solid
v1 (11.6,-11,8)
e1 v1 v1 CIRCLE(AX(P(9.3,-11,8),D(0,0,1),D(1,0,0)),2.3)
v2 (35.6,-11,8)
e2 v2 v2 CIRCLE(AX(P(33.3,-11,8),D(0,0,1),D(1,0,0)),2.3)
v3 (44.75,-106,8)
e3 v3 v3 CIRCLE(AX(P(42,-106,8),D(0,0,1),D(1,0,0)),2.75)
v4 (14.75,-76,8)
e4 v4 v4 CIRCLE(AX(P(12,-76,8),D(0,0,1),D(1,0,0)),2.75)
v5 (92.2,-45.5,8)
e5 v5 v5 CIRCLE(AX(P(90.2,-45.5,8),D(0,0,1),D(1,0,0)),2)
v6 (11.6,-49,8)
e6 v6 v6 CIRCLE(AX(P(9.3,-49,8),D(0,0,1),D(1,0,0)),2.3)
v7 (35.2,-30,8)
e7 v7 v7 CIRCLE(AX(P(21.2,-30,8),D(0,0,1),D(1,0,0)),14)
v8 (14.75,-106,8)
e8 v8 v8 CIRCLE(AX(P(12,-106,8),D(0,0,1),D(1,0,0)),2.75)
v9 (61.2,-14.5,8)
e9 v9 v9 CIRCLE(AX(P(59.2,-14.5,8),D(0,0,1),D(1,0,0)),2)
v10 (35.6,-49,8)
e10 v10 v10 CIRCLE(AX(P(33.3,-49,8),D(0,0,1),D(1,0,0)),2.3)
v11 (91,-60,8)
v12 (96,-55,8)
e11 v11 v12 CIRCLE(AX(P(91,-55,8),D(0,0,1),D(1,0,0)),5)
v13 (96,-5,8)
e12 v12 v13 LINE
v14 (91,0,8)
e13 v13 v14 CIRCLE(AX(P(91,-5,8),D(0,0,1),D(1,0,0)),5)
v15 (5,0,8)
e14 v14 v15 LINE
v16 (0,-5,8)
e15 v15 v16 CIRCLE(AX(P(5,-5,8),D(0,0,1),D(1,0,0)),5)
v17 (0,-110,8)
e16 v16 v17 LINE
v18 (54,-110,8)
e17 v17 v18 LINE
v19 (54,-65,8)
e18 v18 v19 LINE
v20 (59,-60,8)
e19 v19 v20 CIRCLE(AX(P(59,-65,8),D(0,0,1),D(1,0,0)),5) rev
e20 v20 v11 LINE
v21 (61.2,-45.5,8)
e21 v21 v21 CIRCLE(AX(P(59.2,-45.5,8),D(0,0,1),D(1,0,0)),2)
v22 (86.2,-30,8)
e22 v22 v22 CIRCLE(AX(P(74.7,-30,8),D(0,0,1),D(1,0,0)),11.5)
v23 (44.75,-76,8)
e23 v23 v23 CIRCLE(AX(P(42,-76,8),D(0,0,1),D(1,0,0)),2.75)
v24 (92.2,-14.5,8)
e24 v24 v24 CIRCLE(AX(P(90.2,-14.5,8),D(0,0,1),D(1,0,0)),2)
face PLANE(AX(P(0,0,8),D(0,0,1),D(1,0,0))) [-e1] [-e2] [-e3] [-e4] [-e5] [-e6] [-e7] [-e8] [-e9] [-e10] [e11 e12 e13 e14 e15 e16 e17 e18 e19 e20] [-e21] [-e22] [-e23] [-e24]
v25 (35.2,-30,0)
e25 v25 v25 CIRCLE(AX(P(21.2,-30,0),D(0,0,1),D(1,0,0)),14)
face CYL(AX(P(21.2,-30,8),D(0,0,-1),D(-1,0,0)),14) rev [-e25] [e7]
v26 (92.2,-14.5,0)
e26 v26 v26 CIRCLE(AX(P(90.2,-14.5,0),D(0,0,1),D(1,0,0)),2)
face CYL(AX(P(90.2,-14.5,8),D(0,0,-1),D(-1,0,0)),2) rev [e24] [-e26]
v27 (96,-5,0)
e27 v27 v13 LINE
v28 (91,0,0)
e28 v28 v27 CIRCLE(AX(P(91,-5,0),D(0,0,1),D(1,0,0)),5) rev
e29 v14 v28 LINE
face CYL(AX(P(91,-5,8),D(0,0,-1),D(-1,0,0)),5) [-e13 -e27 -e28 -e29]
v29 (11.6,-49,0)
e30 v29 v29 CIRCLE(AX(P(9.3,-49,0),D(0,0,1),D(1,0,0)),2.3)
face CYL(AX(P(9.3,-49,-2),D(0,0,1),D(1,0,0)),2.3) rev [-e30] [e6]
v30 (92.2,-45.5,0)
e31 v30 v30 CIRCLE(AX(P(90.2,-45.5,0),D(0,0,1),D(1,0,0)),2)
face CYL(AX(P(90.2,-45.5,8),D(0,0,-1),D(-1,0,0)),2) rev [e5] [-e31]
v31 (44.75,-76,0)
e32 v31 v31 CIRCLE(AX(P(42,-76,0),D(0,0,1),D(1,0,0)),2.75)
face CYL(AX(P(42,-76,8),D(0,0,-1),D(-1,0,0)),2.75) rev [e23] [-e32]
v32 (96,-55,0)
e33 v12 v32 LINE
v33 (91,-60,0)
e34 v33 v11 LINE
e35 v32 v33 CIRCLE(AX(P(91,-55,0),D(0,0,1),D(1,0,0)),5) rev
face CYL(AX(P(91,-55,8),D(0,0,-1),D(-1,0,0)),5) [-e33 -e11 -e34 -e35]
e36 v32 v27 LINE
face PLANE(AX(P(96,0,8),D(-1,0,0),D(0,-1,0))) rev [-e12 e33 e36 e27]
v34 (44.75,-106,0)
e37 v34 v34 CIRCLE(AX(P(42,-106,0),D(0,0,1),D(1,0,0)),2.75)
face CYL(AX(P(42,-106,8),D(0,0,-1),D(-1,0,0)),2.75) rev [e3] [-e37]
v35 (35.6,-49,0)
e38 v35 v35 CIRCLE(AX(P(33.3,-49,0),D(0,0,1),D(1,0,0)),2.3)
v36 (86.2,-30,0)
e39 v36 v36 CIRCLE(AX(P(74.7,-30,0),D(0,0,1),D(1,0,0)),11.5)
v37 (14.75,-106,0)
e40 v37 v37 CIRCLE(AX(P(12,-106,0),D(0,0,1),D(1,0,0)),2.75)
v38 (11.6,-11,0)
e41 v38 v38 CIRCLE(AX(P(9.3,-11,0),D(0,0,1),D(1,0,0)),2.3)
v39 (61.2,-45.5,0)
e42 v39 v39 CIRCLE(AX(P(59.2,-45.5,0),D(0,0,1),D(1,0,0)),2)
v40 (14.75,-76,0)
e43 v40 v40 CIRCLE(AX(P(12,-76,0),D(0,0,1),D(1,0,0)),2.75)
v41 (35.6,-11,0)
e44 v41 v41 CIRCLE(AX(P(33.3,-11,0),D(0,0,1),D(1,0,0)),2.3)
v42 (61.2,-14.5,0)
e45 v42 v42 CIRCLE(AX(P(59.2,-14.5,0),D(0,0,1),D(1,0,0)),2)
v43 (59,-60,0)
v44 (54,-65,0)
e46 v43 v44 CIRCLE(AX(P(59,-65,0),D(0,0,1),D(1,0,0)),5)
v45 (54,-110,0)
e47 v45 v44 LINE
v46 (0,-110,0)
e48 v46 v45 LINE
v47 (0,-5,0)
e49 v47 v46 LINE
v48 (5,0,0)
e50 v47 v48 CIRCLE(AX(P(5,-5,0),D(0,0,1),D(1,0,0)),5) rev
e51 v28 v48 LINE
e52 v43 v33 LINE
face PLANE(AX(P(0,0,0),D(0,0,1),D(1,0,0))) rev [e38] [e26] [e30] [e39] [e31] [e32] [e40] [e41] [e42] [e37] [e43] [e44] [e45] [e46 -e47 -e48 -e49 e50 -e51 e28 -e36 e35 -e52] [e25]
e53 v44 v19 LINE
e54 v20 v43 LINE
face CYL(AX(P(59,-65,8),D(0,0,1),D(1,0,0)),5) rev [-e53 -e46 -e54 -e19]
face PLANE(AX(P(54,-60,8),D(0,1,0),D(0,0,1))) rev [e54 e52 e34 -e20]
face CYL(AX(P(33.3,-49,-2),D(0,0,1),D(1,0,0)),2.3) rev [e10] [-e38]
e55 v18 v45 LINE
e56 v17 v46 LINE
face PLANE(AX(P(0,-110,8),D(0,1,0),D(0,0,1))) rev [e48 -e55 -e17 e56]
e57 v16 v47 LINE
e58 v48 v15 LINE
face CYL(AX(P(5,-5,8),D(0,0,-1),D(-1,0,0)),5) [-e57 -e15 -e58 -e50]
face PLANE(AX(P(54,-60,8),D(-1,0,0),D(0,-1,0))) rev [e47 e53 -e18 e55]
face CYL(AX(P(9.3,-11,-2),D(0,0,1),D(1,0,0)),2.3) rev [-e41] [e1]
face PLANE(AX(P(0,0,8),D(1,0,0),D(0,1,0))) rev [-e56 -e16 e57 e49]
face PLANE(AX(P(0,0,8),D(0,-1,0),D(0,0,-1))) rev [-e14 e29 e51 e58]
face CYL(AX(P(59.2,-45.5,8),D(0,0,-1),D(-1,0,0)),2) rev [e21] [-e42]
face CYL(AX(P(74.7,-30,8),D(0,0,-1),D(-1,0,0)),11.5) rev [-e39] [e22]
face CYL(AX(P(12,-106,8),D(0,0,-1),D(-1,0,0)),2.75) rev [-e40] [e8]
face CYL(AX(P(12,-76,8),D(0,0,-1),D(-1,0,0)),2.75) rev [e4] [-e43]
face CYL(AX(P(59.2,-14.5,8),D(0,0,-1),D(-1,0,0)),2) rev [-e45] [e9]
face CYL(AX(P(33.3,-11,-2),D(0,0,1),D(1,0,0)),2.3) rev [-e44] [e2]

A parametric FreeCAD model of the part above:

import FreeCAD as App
import Part
import Sketcher

V = App.Vector
Q = App.Units.Quantity


def edges_at(feature, points):
    """Names of the edges that pass closest to the given points."""
    edges = feature.Shape.Edges
    near = lambda p: min(range(len(edges)), key=lambda i: edges[i].distToShape(Part.Vertex(*p))[0])
    return sorted({f"Edge{near(p) + 1}" for p in points})

doc = App.newDocument("Part")
body = doc.addObject("PartDesign::Body", "Body")

# Sketch on XY plane
sketch1 = body.newObject("Sketcher::SketchObject", "Sketch")
sketch1.AttachmentSupport = (doc.getObject("XY_Plane"), [""])
sketch1.MapMode = "FlatFace"
sketch1.addGeometry([
    Part.LineSegment(V(96, 0, 0), V(0, 0, 0)),  # 0
    Part.LineSegment(V(0, 0, 0), V(0, -110, 0)),  # 1
    Part.LineSegment(V(0, -110, 0), V(54, -110, 0)),  # 2
    Part.LineSegment(V(54, -110, 0), V(54, -60, 0)),  # 3
    Part.LineSegment(V(54, -60, 0), V(96, -60, 0)),  # 4
    Part.LineSegment(V(96, -60, 0), V(96, 0, 0)),  # 5
    Part.Circle(V(42, -106, 0), V(0, 0, 1), 2.8),  # 6
    Part.Circle(V(12, -106, 0), V(0, 0, 1), 2.8),  # 7
    Part.Circle(V(42, -76, 0), V(0, 0, 1), 2.8),  # 8
    Part.Circle(V(12, -76, 0), V(0, 0, 1), 2.8),  # 9
    Part.Circle(V(90.2, -45.5, 0), V(0, 0, 1), 2),  # 10
    Part.Circle(V(59.2, -45.5, 0), V(0, 0, 1), 2),  # 11
    Part.Circle(V(74.7, -30, 0), V(0, 0, 1), 11.5),  # 12
    Part.Circle(V(90.2, -14.5, 0), V(0, 0, 1), 2),  # 13
    Part.Circle(V(59.2, -14.5, 0), V(0, 0, 1), 2),  # 14
    Part.Circle(V(21.2, -30, 0), V(0, 0, 1), 14),  # 15
], False)
sketch1.addConstraint([
    Sketcher.Constraint("Coincident", 0, 2, 1, 1),
    Sketcher.Constraint("Coincident", 1, 2, 2, 1),
    Sketcher.Constraint("Coincident", 2, 2, 3, 1),
    Sketcher.Constraint("Coincident", 3, 2, 4, 1),
    Sketcher.Constraint("Coincident", 4, 2, 5, 1),
    Sketcher.Constraint("Coincident", 5, 2, 0, 1),
    Sketcher.Constraint("Horizontal", 0),
    Sketcher.Constraint("Vertical", 1),
    Sketcher.Constraint("Horizontal", 2),
    Sketcher.Constraint("Vertical", 3),
    Sketcher.Constraint("Horizontal", 4),
    Sketcher.Constraint("Vertical", 5),
    Sketcher.Constraint("Coincident", 0, 2, -1, 1),
    Sketcher.Constraint("Equal", 6, 7),
    Sketcher.Constraint("Equal", 7, 8),
    Sketcher.Constraint("Equal", 8, 9),
    Sketcher.Constraint("Equal", 10, 11),
    Sketcher.Constraint("Equal", 11, 13),
    Sketcher.Constraint("Equal", 13, 14),
    Sketcher.Constraint("Horizontal", 6, 3, 7, 3),
    Sketcher.Constraint("Horizontal", 8, 3, 9, 3),
    Sketcher.Constraint("Horizontal", 10, 3, 11, 3),
    Sketcher.Constraint("Horizontal", 13, 3, 14, 3),
    Sketcher.Constraint("Horizontal", 12, 3, 15, 3),
    Sketcher.Constraint("Vertical", 6, 3, 8, 3),
    Sketcher.Constraint("Vertical", 7, 3, 9, 3),
    Sketcher.Constraint("Vertical", 10, 3, 13, 3),
    Sketcher.Constraint("Vertical", 11, 3, 14, 3),
    Sketcher.Constraint("Diameter", 10, Q("4 mm")),
    Sketcher.Constraint("Diameter", 12, Q("23 mm")),
    Sketcher.Constraint("Diameter", 15, Q("28 mm")),
    Sketcher.Constraint("Diameter", 6, Q("5.5 mm")),
    Sketcher.Constraint("DistanceX", 0, 2, 0, 1, Q("96 mm")),
    Sketcher.Constraint("DistanceX", 2, 1, 2, 2, Q("54 mm")),
    Sketcher.Constraint("DistanceY", 1, 2, 1, 1, Q("110 mm")),
    Sketcher.Constraint("DistanceY", 3, 1, 3, 2, Q("50 mm")),
    Sketcher.Constraint("DistanceX", -1, 1, 6, 3, Q("42 mm")),
    Sketcher.Constraint("DistanceY", 6, 3, -1, 1, Q("106 mm")),
    Sketcher.Constraint("DistanceX", -1, 1, 7, 3, Q("12 mm")),
    Sketcher.Constraint("DistanceY", 8, 3, -1, 1, Q("76 mm")),
    Sketcher.Constraint("DistanceY", 12, 3, -1, 1, Q("30 mm")),
    Sketcher.Constraint("DistanceX", 11, 3, 10, 3, Q("31 mm")),
    Sketcher.Constraint("DistanceY", 10, 3, 13, 3, Q("31 mm")),
    Sketcher.Constraint("DistanceX", 15, 3, 11, 3, Q("38 mm")),
    Sketcher.Constraint("DistanceX", -1, 1, 10, 3, Q("90.2 mm")),
    Sketcher.Constraint("DistanceY", 10, 3, -1, 1, Q("45.5 mm")),
    Sketcher.Constraint("DistanceX", -1, 1, 12, 3, Q("74.7 mm")),
])
pad1 = body.newObject("PartDesign::Pad", "Pad")
pad1.Profile = sketch1
pad1.Length = 8
doc.recompute()

fillet = body.newObject("PartDesign::Fillet", "Fillet")
fillet.Base = (pad1, edges_at(pad1, [
    (0, 0, 4),
    (96, 0, 4),
    (96, -60, 4),
    (54, -60, 4),
]))
fillet.Radius = 5

# Sketch on XY plane
sketch2 = body.newObject("Sketcher::SketchObject", "Sketch001")
sketch2.AttachmentSupport = (doc.getObject("XY_Plane"), [""])
sketch2.MapMode = "FlatFace"
sketch2.AttachmentOffset = App.Placement(V(0, 0, 8), App.Rotation())
sketch2.addGeometry([
    Part.Circle(V(9.3, -11, 0), V(0, 0, 1), 2.3),
    Part.Circle(V(33.3, -11, 0), V(0, 0, 1), 2.3),
    Part.Circle(V(33.3, -49, 0), V(0, 0, 1), 2.3),
    Part.Circle(V(9.3, -49, 0), V(0, 0, 1), 2.3),
], False)
sketch2.addConstraint([
    Sketcher.Constraint("Equal", 0, 1),
    Sketcher.Constraint("Equal", 1, 2),
    Sketcher.Constraint("Equal", 2, 3),
    Sketcher.Constraint("Horizontal", 0, 3, 1, 3),
    Sketcher.Constraint("Horizontal", 2, 3, 3, 3),
    Sketcher.Constraint("Vertical", 1, 3, 2, 3),
    Sketcher.Constraint("Vertical", 0, 3, 3, 3),
    Sketcher.Constraint("Diameter", 0, Q("4.6 mm")),
    Sketcher.Constraint("DistanceY", 0, 3, -1, 1, Q("11 mm")),
    Sketcher.Constraint("DistanceY", 2, 3, -1, 1, Q("49 mm")),
    Sketcher.Constraint("DistanceX", 0, 3, 1, 3, Q("24 mm")),
    Sketcher.Constraint("DistanceX", -1, 1, 0, 3, Q("9.3 mm")),
])
pocket1 = body.newObject("PartDesign::Pocket", "Pocket")
pocket1.Profile = sketch2
pocket1.Length = 10

doc.recompute()
